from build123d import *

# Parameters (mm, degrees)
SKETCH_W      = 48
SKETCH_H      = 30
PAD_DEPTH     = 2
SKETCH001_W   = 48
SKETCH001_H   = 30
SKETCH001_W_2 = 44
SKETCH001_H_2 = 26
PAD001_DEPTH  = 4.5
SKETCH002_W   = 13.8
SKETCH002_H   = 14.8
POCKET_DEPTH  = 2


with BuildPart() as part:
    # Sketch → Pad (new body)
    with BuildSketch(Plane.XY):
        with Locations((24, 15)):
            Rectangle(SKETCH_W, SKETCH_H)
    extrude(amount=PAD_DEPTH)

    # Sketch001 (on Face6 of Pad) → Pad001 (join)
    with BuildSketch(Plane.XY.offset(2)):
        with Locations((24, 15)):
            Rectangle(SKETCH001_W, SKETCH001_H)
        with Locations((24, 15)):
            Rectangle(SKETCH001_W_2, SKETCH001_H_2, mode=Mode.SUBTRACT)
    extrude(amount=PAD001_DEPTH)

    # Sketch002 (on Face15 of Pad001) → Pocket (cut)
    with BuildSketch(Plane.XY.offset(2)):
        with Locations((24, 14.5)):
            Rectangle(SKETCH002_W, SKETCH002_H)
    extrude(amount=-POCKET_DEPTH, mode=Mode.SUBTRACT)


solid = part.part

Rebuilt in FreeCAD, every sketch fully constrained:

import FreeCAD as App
import Part
import Sketcher

V = App.Vector

doc = App.newDocument("Part")
params = doc.addObject("Spreadsheet::Sheet", "Params")
for row, (alias, value) in enumerate([
    ("sketch1_width", "48 mm"),
    ("sketch1_height", "30 mm"),
    ("pad1_length", "2 mm"),
    ("sketch2_width", "48 mm"),
    ("sketch2_width2", "44 mm"),
    ("sketch2_height", "30 mm"),
    ("sketch2_height2", "26 mm"),
    ("pad2_length", "4.5 mm"),
    ("sketch3_width", "13.8 mm"),
    ("sketch3_height", "14.8 mm"),
    ("pocket1_length", "2 mm"),
], start=1):
    params.set(f"A{row}", alias)
    params.set(f"B{row}", "=" + value)
    params.setAlias(f"B{row}", alias)

body = doc.addObject("PartDesign::Body", "Body")

sketch1 = body.newObject("Sketcher::SketchObject", "Sketch")
sketch1.AttachmentSupport = (doc.getObject("XY_Plane"), [""])
sketch1.MapMode = "FlatFace"
sketch1.addGeometry(Part.LineSegment(V(0, 30, 0), V(0, 0, 0)), False)
sketch1.addGeometry(Part.LineSegment(V(0, 0, 0), V(48, 0, 0)), False)
sketch1.addGeometry(Part.LineSegment(V(48, 0, 0), V(48, 30, 0)), False)
sketch1.addGeometry(Part.LineSegment(V(48, 30, 0), V(0, 30, 0)), False)
sketch1.addConstraint(Sketcher.Constraint("Coincident", 0, 2, 1, 1))
sketch1.addConstraint(Sketcher.Constraint("Coincident", 1, 2, 2, 1))
sketch1.addConstraint(Sketcher.Constraint("Coincident", 2, 2, 3, 1))
sketch1.addConstraint(Sketcher.Constraint("Coincident", 3, 2, 0, 1))
sketch1.addConstraint(Sketcher.Constraint("Vertical", 0))
sketch1.addConstraint(Sketcher.Constraint("Horizontal", 1))
sketch1.addConstraint(Sketcher.Constraint("Vertical", 2))
sketch1.addConstraint(Sketcher.Constraint("Horizontal", 3))
sketch1.addConstraint(Sketcher.Constraint("Coincident", 0, 2, -1, 1))
sketch1.addConstraint(Sketcher.Constraint("DistanceX", 1, 1, 1, 2, 48.0))
sketch1.addConstraint(Sketcher.Constraint("DistanceY", 0, 2, 0, 1, 30.0))
sketch1.setExpression("Constraints[9]", "Params.sketch1_width")
sketch1.setExpression("Constraints[10]", "Params.sketch1_height")
pad1 = body.newObject("PartDesign::Pad", "Pad")
pad1.Profile = sketch1
pad1.setExpression("Length", "Params.pad1_length")

sketch2 = body.newObject("Sketcher::SketchObject", "Sketch001")
sketch2.AttachmentSupport = (doc.getObject("XY_Plane"), [""])
sketch2.MapMode = "FlatFace"
sketch2.AttachmentOffset = App.Placement(V(0, 0, 2), App.Rotation())
sketch2.addGeometry(Part.LineSegment(V(0, 30, 0), V(0, 0, 0)), False)
sketch2.addGeometry(Part.LineSegment(V(0, 0, 0), V(48, 0, 0)), False)
sketch2.addGeometry(Part.LineSegment(V(48, 0, 0), V(48, 30, 0)), False)
sketch2.addGeometry(Part.LineSegment(V(48, 30, 0), V(0, 30, 0)), False)
sketch2.addGeometry(Part.LineSegment(V(46, 2, 0), V(2, 2, 0)), False)
sketch2.addGeometry(Part.LineSegment(V(2, 2, 0), V(2, 28, 0)), False)
sketch2.addGeometry(Part.LineSegment(V(2, 28, 0), V(46, 28, 0)), False)
sketch2.addGeometry(Part.LineSegment(V(46, 28, 0), V(46, 2, 0)), False)
sketch2.addConstraint(Sketcher.Constraint("Coincident", 0, 2, 1, 1))
sketch2.addConstraint(Sketcher.Constraint("Coincident", 1, 2, 2, 1))
sketch2.addConstraint(Sketcher.Constraint("Coincident", 2, 2, 3, 1))
sketch2.addConstraint(Sketcher.Constraint("Coincident", 3, 2, 0, 1))
sketch2.addConstraint(Sketcher.Constraint("Coincident", 4, 2, 5, 1))
sketch2.addConstraint(Sketcher.Constraint("Coincident", 5, 2, 6, 1))
sketch2.addConstraint(Sketcher.Constraint("Coincident", 6, 2, 7, 1))
sketch2.addConstraint(Sketcher.Constraint("Coincident", 7, 2, 4, 1))
sketch2.addConstraint(Sketcher.Constraint("Vertical", 0))
sketch2.addConstraint(Sketcher.Constraint("Horizontal", 1))
sketch2.addConstraint(Sketcher.Constraint("Vertical", 2))
sketch2.addConstraint(Sketcher.Constraint("Horizontal", 3))
sketch2.addConstraint(Sketcher.Constraint("Horizontal", 4))
sketch2.addConstraint(Sketcher.Constraint("Vertical", 5))
sketch2.addConstraint(Sketcher.Constraint("Horizontal", 6))
sketch2.addConstraint(Sketcher.Constraint("Vertical", 7))
sketch2.addConstraint(Sketcher.Constraint("Coincident", 0, 2, -1, 1))
sketch2.addConstraint(Sketcher.Constraint("DistanceX", 1, 1, 1, 2, 48.0))
sketch2.addConstraint(Sketcher.Constraint("DistanceX", 4, 2, 4, 1, 44.0))
sketch2.addConstraint(Sketcher.Constraint("DistanceY", 0, 2, 0, 1, 30.0))
sketch2.addConstraint(Sketcher.Constraint("DistanceY", 5, 1, 5, 2, 26.0))
sketch2.addConstraint(Sketcher.Constraint("DistanceX", -1, 1, 4, 2, 2.0))
sketch2.addConstraint(Sketcher.Constraint("DistanceY", -1, 1, 4, 2, 2.0))
sketch2.setExpression("Constraints[17]", "Params.sketch2_width")
sketch2.setExpression("Constraints[18]", "Params.sketch2_width2")
sketch2.setExpression("Constraints[19]", "Params.sketch2_height")
sketch2.setExpression("Constraints[20]", "Params.sketch2_height2")
pad2 = body.newObject("PartDesign::Pad", "Pad001")
pad2.Profile = sketch2
pad2.setExpression("Length", "Params.pad2_length")

sketch3 = body.newObject("Sketcher::SketchObject", "Sketch002")
sketch3.AttachmentSupport = (doc.getObject("XY_Plane"), [""])
sketch3.MapMode = "FlatFace"
sketch3.AttachmentOffset = App.Placement(V(0, 0, 2), App.Rotation())
sketch3.addGeometry(Part.LineSegment(V(17.1, 21.9, 0), V(17.1, 7.1, 0)), False)
sketch3.addGeometry(Part.LineSegment(V(17.1, 7.1, 0), V(30.9, 7.1, 0)), False)
sketch3.addGeometry(Part.LineSegment(V(30.9, 7.1, 0), V(30.9, 21.9, 0)), False)
sketch3.addGeometry(Part.LineSegment(V(30.9, 21.9, 0), V(17.1, 21.9, 0)), False)
sketch3.addConstraint(Sketcher.Constraint("Coincident", 0, 2, 1, 1))
sketch3.addConstraint(Sketcher.Constraint("Coincident", 1, 2, 2, 1))
sketch3.addConstraint(Sketcher.Constraint("Coincident", 2, 2, 3, 1))
sketch3.addConstraint(Sketcher.Constraint("Coincident", 3, 2, 0, 1))
sketch3.addConstraint(Sketcher.Constraint("Vertical", 0))
sketch3.addConstraint(Sketcher.Constraint("Horizontal", 1))
sketch3.addConstraint(Sketcher.Constraint("Vertical", 2))
sketch3.addConstraint(Sketcher.Constraint("Horizontal", 3))
sketch3.addConstraint(Sketcher.Constraint("DistanceX", 1, 1, 1, 2, 13.8))
sketch3.addConstraint(Sketcher.Constraint("DistanceY", 0, 2, 0, 1, 14.8))
sketch3.addConstraint(Sketcher.Constraint("DistanceX", -1, 1, 0, 2, 17.1))
sketch3.addConstraint(Sketcher.Constraint("DistanceY", -1, 1, 0, 2, 7.1))
sketch3.setExpression("Constraints[8]", "Params.sketch3_width")
sketch3.setExpression("Constraints[9]", "Params.sketch3_height")
pocket1 = body.newObject("PartDesign::Pocket", "Pocket")
pocket1.Profile = sketch3
pocket1.setExpression("Length", "Params.pocket1_length")

doc.recompute()
